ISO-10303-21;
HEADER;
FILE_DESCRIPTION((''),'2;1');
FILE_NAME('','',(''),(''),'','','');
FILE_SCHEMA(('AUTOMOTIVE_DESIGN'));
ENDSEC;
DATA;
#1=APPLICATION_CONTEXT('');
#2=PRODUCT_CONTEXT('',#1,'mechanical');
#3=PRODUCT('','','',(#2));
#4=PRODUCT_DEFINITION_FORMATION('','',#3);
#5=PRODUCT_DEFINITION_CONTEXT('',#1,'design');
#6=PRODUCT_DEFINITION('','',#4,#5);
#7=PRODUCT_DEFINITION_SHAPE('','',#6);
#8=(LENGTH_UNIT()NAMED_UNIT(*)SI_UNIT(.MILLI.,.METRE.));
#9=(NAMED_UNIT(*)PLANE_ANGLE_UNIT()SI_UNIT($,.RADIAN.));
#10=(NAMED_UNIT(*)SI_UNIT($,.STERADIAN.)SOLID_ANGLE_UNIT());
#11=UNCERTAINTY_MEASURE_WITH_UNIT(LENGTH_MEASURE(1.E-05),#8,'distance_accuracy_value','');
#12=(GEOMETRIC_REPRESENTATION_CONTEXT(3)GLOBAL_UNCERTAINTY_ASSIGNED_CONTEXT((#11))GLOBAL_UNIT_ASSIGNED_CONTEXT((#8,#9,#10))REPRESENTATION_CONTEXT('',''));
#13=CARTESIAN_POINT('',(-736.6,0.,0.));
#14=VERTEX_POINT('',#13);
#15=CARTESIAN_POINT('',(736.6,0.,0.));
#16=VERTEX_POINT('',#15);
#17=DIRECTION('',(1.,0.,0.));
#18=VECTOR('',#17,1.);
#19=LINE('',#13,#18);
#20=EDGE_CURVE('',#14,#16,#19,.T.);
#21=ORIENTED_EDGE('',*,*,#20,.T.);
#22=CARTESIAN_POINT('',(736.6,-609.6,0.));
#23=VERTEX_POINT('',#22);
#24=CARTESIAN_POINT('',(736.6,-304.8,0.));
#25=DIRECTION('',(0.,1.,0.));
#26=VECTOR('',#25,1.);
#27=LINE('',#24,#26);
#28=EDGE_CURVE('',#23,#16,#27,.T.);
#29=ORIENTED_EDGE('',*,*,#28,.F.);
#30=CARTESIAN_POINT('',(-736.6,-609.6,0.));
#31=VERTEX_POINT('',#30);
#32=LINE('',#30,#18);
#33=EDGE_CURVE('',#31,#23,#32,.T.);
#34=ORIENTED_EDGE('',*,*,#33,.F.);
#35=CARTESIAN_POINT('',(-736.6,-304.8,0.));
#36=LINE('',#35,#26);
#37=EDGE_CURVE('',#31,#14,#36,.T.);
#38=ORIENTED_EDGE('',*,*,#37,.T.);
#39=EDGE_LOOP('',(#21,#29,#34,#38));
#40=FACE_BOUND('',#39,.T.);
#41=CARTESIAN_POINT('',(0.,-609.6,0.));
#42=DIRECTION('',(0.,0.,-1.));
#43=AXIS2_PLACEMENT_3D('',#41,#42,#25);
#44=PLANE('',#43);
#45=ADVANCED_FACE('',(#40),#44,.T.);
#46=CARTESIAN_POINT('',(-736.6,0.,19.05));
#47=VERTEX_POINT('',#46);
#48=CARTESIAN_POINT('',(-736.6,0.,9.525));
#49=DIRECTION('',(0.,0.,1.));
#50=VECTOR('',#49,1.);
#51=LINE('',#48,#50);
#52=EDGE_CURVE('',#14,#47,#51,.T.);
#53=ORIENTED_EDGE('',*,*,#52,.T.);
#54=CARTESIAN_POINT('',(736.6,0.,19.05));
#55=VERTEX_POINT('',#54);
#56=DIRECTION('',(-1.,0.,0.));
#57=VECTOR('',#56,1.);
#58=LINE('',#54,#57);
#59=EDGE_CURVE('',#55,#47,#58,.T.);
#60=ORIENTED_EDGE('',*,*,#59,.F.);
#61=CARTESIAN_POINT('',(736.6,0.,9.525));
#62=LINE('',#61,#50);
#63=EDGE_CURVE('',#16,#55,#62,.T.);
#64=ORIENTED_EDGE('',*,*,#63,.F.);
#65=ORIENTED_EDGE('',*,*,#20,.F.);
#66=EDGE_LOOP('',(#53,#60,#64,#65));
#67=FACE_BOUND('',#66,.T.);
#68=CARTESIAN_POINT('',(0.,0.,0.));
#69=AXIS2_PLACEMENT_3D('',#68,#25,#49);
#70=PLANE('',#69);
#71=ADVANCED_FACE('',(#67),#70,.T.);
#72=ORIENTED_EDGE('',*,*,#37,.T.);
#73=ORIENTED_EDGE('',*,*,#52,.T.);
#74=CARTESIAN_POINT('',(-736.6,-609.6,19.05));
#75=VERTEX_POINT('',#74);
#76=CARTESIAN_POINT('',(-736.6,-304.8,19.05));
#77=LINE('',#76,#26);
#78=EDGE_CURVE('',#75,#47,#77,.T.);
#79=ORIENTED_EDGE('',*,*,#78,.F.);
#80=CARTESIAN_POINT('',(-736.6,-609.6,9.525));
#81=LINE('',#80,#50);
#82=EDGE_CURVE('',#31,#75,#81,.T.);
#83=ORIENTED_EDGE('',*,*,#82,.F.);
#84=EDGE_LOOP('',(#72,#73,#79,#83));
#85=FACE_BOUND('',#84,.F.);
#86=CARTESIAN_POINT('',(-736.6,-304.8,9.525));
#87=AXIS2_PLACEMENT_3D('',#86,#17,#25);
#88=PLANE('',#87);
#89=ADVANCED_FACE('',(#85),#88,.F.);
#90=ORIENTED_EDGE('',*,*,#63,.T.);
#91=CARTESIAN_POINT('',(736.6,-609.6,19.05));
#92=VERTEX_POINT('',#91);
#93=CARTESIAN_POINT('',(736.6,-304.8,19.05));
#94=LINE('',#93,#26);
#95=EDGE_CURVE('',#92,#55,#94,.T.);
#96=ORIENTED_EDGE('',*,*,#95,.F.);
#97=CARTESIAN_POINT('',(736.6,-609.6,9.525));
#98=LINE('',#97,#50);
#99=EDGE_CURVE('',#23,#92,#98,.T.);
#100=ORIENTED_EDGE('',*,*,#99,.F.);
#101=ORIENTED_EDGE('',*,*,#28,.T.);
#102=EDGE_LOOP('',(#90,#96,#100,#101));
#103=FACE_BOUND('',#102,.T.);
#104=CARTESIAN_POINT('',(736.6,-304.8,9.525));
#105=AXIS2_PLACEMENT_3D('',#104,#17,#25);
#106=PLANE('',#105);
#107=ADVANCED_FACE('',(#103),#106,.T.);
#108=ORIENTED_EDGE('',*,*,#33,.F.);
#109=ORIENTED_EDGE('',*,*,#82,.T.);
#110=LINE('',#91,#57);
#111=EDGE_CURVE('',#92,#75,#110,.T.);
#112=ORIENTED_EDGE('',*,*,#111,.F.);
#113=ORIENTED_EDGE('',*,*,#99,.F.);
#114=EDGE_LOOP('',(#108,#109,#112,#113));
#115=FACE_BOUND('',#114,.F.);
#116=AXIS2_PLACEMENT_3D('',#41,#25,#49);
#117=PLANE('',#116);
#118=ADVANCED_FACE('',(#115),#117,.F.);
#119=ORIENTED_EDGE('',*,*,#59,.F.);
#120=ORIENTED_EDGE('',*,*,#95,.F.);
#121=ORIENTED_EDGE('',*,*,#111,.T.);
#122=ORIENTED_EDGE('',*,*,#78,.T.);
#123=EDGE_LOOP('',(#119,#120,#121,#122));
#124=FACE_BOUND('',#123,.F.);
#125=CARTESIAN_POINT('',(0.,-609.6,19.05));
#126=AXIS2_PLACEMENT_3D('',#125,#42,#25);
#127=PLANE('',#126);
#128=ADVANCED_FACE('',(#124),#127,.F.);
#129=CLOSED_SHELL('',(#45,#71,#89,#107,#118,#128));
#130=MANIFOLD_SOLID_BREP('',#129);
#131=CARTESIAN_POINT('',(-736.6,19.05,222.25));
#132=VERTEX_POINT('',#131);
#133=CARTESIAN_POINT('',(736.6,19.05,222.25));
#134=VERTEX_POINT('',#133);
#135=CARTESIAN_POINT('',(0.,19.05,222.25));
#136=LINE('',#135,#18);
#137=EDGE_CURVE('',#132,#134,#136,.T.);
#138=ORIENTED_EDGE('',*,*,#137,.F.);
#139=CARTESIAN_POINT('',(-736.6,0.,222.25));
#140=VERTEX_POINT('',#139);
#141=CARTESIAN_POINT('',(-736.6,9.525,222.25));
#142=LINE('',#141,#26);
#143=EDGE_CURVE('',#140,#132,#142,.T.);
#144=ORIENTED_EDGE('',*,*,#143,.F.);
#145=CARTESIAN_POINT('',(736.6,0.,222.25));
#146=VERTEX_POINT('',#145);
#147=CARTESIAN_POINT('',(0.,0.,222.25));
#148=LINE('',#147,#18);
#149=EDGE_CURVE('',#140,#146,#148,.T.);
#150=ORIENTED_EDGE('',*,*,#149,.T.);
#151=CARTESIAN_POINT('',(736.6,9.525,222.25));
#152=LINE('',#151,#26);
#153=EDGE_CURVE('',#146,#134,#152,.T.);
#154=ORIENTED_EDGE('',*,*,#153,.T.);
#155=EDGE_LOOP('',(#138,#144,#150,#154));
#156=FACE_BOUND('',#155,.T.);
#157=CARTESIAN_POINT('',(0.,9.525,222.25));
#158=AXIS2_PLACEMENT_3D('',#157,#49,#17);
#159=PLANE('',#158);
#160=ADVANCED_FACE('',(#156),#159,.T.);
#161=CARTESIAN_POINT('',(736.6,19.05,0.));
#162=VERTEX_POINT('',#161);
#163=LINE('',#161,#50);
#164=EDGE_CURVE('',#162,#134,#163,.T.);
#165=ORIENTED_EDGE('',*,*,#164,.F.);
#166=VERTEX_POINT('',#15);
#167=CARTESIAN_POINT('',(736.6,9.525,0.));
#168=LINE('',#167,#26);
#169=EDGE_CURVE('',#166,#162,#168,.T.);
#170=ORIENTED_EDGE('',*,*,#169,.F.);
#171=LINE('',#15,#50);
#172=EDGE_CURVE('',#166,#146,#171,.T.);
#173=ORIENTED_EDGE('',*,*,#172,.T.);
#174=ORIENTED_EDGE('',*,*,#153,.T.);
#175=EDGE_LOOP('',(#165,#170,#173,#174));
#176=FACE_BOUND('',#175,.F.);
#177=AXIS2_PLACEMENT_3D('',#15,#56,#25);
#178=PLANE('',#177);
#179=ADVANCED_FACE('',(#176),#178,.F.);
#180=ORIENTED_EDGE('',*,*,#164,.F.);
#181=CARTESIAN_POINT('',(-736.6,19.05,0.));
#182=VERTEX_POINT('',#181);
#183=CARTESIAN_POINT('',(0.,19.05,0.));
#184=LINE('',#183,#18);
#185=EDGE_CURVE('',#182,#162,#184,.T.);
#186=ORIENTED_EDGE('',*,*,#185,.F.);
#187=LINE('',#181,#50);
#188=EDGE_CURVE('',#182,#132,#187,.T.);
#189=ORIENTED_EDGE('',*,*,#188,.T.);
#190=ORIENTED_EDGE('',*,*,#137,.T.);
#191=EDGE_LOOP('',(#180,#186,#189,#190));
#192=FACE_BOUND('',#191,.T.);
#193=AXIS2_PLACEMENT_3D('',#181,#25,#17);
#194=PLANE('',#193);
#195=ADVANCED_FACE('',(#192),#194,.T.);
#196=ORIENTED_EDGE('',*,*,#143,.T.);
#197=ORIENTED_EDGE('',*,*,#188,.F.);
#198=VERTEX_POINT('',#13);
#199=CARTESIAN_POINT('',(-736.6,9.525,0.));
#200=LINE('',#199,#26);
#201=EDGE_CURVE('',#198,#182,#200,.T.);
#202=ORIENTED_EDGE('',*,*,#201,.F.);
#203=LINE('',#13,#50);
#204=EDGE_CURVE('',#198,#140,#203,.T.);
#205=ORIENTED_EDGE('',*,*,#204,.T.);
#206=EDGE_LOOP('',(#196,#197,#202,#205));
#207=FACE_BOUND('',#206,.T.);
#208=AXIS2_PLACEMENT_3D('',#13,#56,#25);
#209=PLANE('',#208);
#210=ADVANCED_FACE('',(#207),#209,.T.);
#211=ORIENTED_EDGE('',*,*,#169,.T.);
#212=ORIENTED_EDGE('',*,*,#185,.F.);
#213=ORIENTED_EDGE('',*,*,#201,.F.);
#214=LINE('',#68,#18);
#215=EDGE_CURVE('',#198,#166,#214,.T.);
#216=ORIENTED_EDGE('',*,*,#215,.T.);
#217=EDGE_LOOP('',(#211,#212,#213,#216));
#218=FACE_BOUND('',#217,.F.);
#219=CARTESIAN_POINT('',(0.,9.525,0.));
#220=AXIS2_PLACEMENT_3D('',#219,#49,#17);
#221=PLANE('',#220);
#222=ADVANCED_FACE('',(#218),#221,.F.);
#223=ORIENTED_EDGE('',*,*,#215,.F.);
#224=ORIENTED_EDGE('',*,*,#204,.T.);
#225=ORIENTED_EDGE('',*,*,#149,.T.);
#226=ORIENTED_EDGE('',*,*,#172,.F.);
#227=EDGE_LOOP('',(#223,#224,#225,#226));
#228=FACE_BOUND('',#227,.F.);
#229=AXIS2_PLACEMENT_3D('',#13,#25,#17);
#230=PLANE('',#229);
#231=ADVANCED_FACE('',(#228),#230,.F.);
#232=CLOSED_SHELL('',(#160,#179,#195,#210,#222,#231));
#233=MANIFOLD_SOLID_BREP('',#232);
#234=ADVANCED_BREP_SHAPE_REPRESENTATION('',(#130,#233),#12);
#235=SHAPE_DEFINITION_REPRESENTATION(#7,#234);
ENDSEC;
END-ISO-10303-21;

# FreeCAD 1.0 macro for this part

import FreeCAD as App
import Part
import Sketcher
from FreeCAD import Vector
Q = App.Units.Quantity

doc = App.newDocument("Part")
params = doc.addObject("Spreadsheet::Sheet", "Params")
for row, (alias, value) in enumerate([
    ("sketch1_width", "24 in"),
    ("sketch1_height", "0.75 in"),
    ("pad1_length", "58 in"),
    ("sketch2_width", "58 in"),
    ("sketch2_height", "0.75 in"),
    ("pad2_length", "8.75 in"),
], start=1):
    params.set(f"A{row}", alias)
    params.set(f"B{row}", "=" + value)
    params.setAlias(f"B{row}", alias)

body = doc.addObject("PartDesign::Body", "Body")

sketch1 = body.newObject("Sketcher::SketchObject", "Sketch")
sketch1.AttachmentSupport = (doc.getObject("YZ_Plane"), [""])
sketch1.MapMode = "FlatFace"
sketch1.addGeometry(Part.LineSegment(Vector(-609.6, 19.05, 0), Vector(-609.6, 0, 0)), False)
sketch1.addGeometry(Part.LineSegment(Vector(-609.6, 0, 0), Vector(0, 0, 0)), False)
sketch1.addGeometry(Part.LineSegment(Vector(0, 0, 0), Vector(0, 19.05, 0)), False)
sketch1.addGeometry(Part.LineSegment(Vector(0, 19.05, 0), Vector(-609.6, 19.05, 0)), False)
sketch1.addConstraint(Sketcher.Constraint("Coincident", 0, 2, 1, 1))
sketch1.addConstraint(Sketcher.Constraint("Coincident", 1, 2, 2, 1))
sketch1.addConstraint(Sketcher.Constraint("Coincident", 2, 2, 3, 1))
sketch1.addConstraint(Sketcher.Constraint("Coincident", 3, 2, 0, 1))
sketch1.addConstraint(Sketcher.Constraint("Vertical", 0))
sketch1.addConstraint(Sketcher.Constraint("Horizontal", 1))
sketch1.addConstraint(Sketcher.Constraint("Vertical", 2))
sketch1.addConstraint(Sketcher.Constraint("Horizontal", 3))
sketch1.addConstraint(Sketcher.Constraint("Coincident", 1, 2, -1, 1))
sketch1.addConstraint(Sketcher.Constraint("DistanceX", 1, 1, 1, 2, Q("24 in")))
sketch1.addConstraint(Sketcher.Constraint("DistanceY", 0, 2, 0, 1, Q("0.75 in")))
sketch1.setExpression("Constraints[9]", "Params.sketch1_width")
sketch1.setExpression("Constraints[10]", "Params.sketch1_height")
pad1 = body.newObject("PartDesign::Pad", "Pad")
pad1.Profile = sketch1
pad1.setExpression("Length", "Params.pad1_length")
pad1.Midplane = True
body2 = doc.addObject("PartDesign::Body", "Body001")

sketch2 = body2.newObject("Sketcher::SketchObject", "Sketch001")
sketch2.AttachmentSupport = (doc.getObject("XY_Plane001"), [""])
sketch2.MapMode = "FlatFace"
sketch2.addGeometry(Part.LineSegment(Vector(-736.6, 19.05, 0), Vector(-736.6, 0, 0)), False)
sketch2.addGeometry(Part.LineSegment(Vector(-736.6, 0, 0), Vector(736.6, 0, 0)), False)
sketch2.addGeometry(Part.LineSegment(Vector(736.6, 0, 0), Vector(736.6, 19.05, 0)), False)
sketch2.addGeometry(Part.LineSegment(Vector(736.6, 19.05, 0), Vector(-736.6, 19.05, 0)), False)
sketch2.addConstraint(Sketcher.Constraint("Coincident", 0, 2, 1, 1))
sketch2.addConstraint(Sketcher.Constraint("Coincident", 1, 2, 2, 1))
sketch2.addConstraint(Sketcher.Constraint("Coincident", 2, 2, 3, 1))
sketch2.addConstraint(Sketcher.Constraint("Coincident", 3, 2, 0, 1))
sketch2.addConstraint(Sketcher.Constraint("Vertical", 0))
sketch2.addConstraint(Sketcher.Constraint("Horizontal", 1))
sketch2.addConstraint(Sketcher.Constraint("Vertical", 2))
sketch2.addConstraint(Sketcher.Constraint("Horizontal", 3))
sketch2.addConstraint(Sketcher.Constraint("Symmetric", 0, 2, 1, 2, -1, 1))
sketch2.addConstraint(Sketcher.Constraint("DistanceX", 1, 1, 1, 2, Q("58 in")))
sketch2.addConstraint(Sketcher.Constraint("DistanceY", 0, 2, 0, 1, Q("0.75 in")))
sketch2.setExpression("Constraints[9]", "Params.sketch2_width")
sketch2.setExpression("Constraints[10]", "Params.sketch2_height")
pad2 = body2.newObject("PartDesign::Pad", "Pad001")
pad2.Profile = sketch2
pad2.setExpression("Length", "Params.pad2_length")

doc.recompute()
